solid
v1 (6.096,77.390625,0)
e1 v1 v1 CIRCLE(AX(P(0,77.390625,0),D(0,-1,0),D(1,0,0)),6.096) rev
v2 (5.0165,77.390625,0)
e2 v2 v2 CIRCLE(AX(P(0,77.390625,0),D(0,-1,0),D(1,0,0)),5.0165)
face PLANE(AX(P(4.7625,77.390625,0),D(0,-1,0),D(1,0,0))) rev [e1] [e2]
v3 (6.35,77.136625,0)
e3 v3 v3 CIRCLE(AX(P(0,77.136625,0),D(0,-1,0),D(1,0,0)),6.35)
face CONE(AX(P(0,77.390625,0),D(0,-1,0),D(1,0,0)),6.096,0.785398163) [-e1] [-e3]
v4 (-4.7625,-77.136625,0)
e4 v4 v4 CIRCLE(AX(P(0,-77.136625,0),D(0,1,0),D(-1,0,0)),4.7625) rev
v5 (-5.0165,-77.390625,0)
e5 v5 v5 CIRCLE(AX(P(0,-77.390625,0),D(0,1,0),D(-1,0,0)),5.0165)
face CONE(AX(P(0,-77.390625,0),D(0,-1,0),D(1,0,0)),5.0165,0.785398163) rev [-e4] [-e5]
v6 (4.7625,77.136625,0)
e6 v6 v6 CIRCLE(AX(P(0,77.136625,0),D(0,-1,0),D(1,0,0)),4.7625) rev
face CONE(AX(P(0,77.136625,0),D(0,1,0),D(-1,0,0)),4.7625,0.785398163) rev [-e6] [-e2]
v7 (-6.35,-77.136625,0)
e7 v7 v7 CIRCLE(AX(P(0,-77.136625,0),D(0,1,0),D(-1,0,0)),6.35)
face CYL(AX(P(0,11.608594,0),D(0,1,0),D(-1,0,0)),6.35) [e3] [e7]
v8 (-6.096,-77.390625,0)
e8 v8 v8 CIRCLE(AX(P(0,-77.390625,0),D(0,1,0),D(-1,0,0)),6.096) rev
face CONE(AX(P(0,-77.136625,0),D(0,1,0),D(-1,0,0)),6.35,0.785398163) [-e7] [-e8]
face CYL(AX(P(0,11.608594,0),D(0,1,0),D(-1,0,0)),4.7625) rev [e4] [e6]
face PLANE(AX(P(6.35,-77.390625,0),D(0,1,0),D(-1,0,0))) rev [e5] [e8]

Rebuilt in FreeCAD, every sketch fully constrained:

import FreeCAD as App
import Part
import Sketcher
Q = App.Units.Quantity


def edges_at(feature, points):
    """Names of the edges that pass closest to the given points."""
    edges = feature.Shape.Edges
    near = lambda p: min(range(len(edges)), key=lambda i: edges[i].distToShape(Part.Vertex(*p))[0])
    return sorted({f"Edge{near(p) + 1}" for p in points})

doc = App.newDocument("Part")
params = doc.addObject("Spreadsheet::Sheet", "Params")
for row, (alias, value) in enumerate([
    ("sketch1_width", "0.0625 in"),
    ("sketch1_height", "6.09375 in"),
    ("revolution_angle", "360 deg"),
    ("chamfer_size", "0.01 in"),
], start=1):
    params.set(f"A{row}", alias)
    params.set(f"B{row}", "=" + value)
    params.setAlias(f"B{row}", alias)

body = doc.addObject("PartDesign::Body", "Body")

sketch1 = body.newObject("Sketcher::SketchObject", "Sketch")
sketch1.AttachmentSupport = (doc.getObject("XY_Plane"), [""])
sketch1.MapMode = "FlatFace"
sketch1.addGeometry(Part.LineSegment(App.Vector(4.8, 77.4, 0), App.Vector(4.8, -77.4, 0)), False)
sketch1.addGeometry(Part.LineSegment(App.Vector(4.8, -77.4, 0), App.Vector(6.3, -77.4, 0)), False)
sketch1.addGeometry(Part.LineSegment(App.Vector(6.3, -77.4, 0), App.Vector(6.3, 77.4, 0)), False)
sketch1.addGeometry(Part.LineSegment(App.Vector(6.3, 77.4, 0), App.Vector(4.8, 77.4, 0)), False)
sketch1.addConstraint(Sketcher.Constraint("Coincident", 0, 2, 1, 1))
sketch1.addConstraint(Sketcher.Constraint("Coincident", 1, 2, 2, 1))
sketch1.addConstraint(Sketcher.Constraint("Coincident", 2, 2, 3, 1))
sketch1.addConstraint(Sketcher.Constraint("Coincident", 3, 2, 0, 1))
sketch1.addConstraint(Sketcher.Constraint("Vertical", 0))
sketch1.addConstraint(Sketcher.Constraint("Horizontal", 1))
sketch1.addConstraint(Sketcher.Constraint("Vertical", 2))
sketch1.addConstraint(Sketcher.Constraint("Horizontal", 3))
sketch1.addConstraint(Sketcher.Constraint("DistanceX", 1, 1, 1, 2, Q("0.0625 in")))
sketch1.addConstraint(Sketcher.Constraint("DistanceY", 0, 2, 0, 1, Q("6.09375 in")))
sketch1.addConstraint(Sketcher.Constraint("DistanceX", -1, 1, 1, 2, Q("0.25 in")))
sketch1.addConstraint(Sketcher.Constraint("DistanceY", 0, 2, -1, 1, Q("3.046875 in")))
sketch1.setExpression("Constraints[8]", "Params.sketch1_width")
sketch1.setExpression("Constraints[9]", "Params.sketch1_height")
revolution = body.newObject("PartDesign::Revolution", "Revolution")
revolution.Profile = sketch1
revolution.ReferenceAxis = (sketch1, ["V_Axis"])
revolution.setExpression("Angle", "Params.revolution_angle")
doc.recompute()

chamfer = body.newObject("PartDesign::Chamfer", "Chamfer")
chamfer.Base = (revolution, edges_at(revolution, [
    (-4.763, -77.391, 0),
    (-6.35, -77.391, 0),
    (-6.35, 77.391, 0),
    (-4.763, 77.391, 0),
]))
chamfer.setExpression("Size", "Params.chamfer_size")

doc.recompute()
